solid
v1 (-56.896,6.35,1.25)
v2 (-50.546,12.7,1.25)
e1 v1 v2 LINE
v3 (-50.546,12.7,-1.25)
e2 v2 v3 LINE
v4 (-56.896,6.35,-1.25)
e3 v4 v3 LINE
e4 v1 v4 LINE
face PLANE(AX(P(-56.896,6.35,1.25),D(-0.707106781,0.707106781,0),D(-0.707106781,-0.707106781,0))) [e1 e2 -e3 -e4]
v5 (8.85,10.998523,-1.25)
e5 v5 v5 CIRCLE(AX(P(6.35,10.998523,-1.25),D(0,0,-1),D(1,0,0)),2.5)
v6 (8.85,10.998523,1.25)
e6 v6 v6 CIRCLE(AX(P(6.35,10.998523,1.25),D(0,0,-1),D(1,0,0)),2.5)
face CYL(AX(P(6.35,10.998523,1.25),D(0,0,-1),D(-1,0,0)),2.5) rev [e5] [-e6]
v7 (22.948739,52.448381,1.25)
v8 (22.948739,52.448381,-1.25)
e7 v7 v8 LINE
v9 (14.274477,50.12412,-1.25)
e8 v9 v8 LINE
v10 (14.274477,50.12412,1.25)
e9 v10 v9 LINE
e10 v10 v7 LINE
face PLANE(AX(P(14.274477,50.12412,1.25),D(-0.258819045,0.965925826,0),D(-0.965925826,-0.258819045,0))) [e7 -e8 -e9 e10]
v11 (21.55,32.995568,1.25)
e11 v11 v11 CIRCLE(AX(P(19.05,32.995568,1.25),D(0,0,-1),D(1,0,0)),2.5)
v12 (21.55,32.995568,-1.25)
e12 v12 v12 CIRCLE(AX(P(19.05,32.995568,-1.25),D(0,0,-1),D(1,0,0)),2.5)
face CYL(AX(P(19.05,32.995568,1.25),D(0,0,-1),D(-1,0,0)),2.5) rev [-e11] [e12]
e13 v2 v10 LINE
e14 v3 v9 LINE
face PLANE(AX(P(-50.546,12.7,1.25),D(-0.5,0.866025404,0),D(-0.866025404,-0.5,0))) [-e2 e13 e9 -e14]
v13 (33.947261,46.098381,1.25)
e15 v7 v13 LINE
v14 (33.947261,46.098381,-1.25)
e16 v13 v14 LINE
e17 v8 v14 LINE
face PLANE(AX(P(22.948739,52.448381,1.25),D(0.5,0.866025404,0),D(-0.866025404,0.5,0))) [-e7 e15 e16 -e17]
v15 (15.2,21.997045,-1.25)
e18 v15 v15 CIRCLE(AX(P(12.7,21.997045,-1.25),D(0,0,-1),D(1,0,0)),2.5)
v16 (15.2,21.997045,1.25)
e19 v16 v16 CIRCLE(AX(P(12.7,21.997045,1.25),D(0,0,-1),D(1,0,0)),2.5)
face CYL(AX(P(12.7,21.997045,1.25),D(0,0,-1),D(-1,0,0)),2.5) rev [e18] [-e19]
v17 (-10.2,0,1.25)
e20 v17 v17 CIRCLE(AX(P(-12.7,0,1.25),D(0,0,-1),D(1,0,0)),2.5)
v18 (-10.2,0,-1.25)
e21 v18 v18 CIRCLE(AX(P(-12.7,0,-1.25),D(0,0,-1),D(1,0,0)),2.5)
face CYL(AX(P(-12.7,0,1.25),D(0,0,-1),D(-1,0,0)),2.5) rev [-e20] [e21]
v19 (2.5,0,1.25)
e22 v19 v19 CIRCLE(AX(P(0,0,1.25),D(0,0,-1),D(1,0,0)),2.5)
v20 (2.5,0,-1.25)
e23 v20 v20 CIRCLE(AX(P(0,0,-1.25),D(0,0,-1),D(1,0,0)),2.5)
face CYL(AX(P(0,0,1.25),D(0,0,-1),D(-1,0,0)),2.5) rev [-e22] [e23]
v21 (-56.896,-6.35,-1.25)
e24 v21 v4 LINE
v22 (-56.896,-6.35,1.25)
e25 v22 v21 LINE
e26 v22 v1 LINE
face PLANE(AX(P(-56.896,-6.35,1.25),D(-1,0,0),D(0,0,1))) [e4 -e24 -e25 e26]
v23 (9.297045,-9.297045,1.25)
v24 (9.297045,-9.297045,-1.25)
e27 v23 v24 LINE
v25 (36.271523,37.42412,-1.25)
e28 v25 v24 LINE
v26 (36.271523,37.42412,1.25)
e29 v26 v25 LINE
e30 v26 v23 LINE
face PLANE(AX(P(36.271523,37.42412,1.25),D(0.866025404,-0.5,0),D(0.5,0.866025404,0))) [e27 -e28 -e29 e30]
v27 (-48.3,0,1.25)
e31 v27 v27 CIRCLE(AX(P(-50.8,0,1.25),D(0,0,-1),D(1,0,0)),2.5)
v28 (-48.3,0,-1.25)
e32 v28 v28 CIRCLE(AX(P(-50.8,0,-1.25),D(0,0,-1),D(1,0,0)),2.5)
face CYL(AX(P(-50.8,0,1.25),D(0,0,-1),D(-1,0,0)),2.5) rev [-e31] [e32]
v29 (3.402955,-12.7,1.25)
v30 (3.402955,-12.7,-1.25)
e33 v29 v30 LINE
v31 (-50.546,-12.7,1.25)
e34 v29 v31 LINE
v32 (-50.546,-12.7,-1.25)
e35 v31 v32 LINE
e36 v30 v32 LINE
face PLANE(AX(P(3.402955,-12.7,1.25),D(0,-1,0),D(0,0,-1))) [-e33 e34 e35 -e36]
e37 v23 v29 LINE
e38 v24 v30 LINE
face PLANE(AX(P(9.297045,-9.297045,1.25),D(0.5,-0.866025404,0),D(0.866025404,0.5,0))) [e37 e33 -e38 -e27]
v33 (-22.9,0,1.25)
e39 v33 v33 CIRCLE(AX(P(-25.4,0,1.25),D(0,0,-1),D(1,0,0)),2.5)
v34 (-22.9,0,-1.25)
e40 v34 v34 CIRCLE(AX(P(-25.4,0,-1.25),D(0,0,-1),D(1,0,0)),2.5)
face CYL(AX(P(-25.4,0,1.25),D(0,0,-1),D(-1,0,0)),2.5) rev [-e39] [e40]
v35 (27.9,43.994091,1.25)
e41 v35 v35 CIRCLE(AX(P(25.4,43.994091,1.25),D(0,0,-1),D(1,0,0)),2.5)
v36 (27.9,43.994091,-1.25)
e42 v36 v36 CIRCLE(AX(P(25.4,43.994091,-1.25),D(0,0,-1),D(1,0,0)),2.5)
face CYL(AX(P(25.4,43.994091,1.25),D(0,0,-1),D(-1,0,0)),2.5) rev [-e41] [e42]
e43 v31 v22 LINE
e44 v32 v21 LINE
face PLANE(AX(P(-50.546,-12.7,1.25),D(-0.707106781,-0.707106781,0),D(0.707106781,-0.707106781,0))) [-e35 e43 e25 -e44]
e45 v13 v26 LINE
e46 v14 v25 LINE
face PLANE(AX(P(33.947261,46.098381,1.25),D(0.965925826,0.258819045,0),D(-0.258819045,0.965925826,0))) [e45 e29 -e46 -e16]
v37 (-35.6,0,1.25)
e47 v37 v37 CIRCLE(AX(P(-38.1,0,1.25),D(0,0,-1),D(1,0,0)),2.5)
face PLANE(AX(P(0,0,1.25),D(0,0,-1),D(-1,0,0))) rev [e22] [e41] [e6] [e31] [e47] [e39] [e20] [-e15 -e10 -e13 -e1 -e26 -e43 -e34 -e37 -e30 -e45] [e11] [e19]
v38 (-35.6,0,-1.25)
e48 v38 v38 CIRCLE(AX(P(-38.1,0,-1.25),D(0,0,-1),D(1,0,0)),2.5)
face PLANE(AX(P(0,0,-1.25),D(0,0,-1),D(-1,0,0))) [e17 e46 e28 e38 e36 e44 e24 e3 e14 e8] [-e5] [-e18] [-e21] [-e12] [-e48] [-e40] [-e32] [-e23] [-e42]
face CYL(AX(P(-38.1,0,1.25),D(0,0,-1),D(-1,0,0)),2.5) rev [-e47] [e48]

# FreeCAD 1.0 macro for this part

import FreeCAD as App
import Part
import Sketcher
from FreeCAD import Vector
Q = App.Units.Quantity

doc = App.newDocument("Part")
body = doc.addObject("PartDesign::Body", "Body")

sketch1 = body.newObject("Sketcher::SketchObject", "Sketch")
sketch1.AttachmentSupport = (doc.getObject("XY_Plane"), [""])
sketch1.MapMode = "FlatFace"
sketch1.AttachmentOffset = App.Placement(Vector(0, 0, -1.25), App.Rotation())
sketch1.addGeometry([
    Part.LineSegment(Vector(3.4, -12.7, 0), Vector(-50.5, -12.7, 0)),
    Part.LineSegment(Vector(-50.5, -12.7, 0), Vector(-56.9, -6.3, 0)),
    Part.LineSegment(Vector(-56.9, -6.3, 0), Vector(-56.9, 6.3, 0)),
    Part.LineSegment(Vector(-56.9, 6.3, 0), Vector(-50.5, 12.7, 0)),
    Part.LineSegment(Vector(-50.5, 12.7, 0), Vector(14.3, 50.1, 0)),
    Part.LineSegment(Vector(14.3, 50.1, 0), Vector(22.9, 52.4, 0)),
    Part.LineSegment(Vector(22.9, 52.4, 0), Vector(33.9, 46.1, 0)),
    Part.LineSegment(Vector(33.9, 46.1, 0), Vector(36.3, 37.4, 0)),
    Part.LineSegment(Vector(36.3, 37.4, 0), Vector(9.3, -9.3, 0)),
    Part.LineSegment(Vector(9.3, -9.3, 0), Vector(3.4, -12.7, 0)),
    Part.Circle(Vector(0, 0, 0), Vector(0, 0, 1), 2.5),
    Part.Circle(Vector(6.3, 11, 0), Vector(0, 0, 1), 2.5),
    Part.Circle(Vector(-12.7, 0, 0), Vector(0, 0, 1), 2.5),
    Part.Circle(Vector(-25.4, 0, 0), Vector(0, 0, 1), 2.5),
    Part.Circle(Vector(-38.1, 0, 0), Vector(0, 0, 1), 2.5),
    Part.Circle(Vector(-50.8, 0, 0), Vector(0, 0, 1), 2.5),
    Part.Circle(Vector(12.7, 22, 0), Vector(0, 0, 1), 2.5),
    Part.Circle(Vector(19.1, 33, 0), Vector(0, 0, 1), 2.5),
    Part.Circle(Vector(25.4, 44, 0), Vector(0, 0, 1), 2.5),
], False)
sketch1.addConstraint([
    Sketcher.Constraint("Coincident", 0, 2, 1, 1),
    Sketcher.Constraint("Coincident", 1, 2, 2, 1),
    Sketcher.Constraint("Coincident", 2, 2, 3, 1),
    Sketcher.Constraint("Coincident", 3, 2, 4, 1),
    Sketcher.Constraint("Coincident", 4, 2, 5, 1),
    Sketcher.Constraint("Coincident", 5, 2, 6, 1),
    Sketcher.Constraint("Coincident", 6, 2, 7, 1),
    Sketcher.Constraint("Coincident", 7, 2, 8, 1),
    Sketcher.Constraint("Coincident", 8, 2, 9, 1),
    Sketcher.Constraint("Coincident", 9, 2, 0, 1),
    Sketcher.Constraint("Horizontal", 0),
    Sketcher.Constraint("Vertical", 2),
    Sketcher.Constraint("Coincident", 10, 3, -1, 1),
    Sketcher.Constraint("Equal", 10, 11),
    Sketcher.Constraint("Equal", 11, 12),
    Sketcher.Constraint("Equal", 12, 13),
    Sketcher.Constraint("Equal", 13, 14),
    Sketcher.Constraint("Equal", 14, 15),
    Sketcher.Constraint("Equal", 15, 16),
    Sketcher.Constraint("Equal", 16, 17),
    Sketcher.Constraint("Equal", 17, 18),
    Sketcher.Constraint("Symmetric", 0, 2, 3, 2, -1),
    Sketcher.Constraint("PointOnObject", 12, 3, -1),
    Sketcher.Constraint("PointOnObject", 13, 3, -1),
    Sketcher.Constraint("PointOnObject", 14, 3, -1),
    Sketcher.Constraint("PointOnObject", 15, 3, -1),
    Sketcher.Constraint("Perpendicular", 1, 3),
    Sketcher.Constraint("Perpendicular", 5, 7),
    Sketcher.Constraint("Perpendicular", 6, 8),
    Sketcher.Constraint("Parallel", 4, 9),
    Sketcher.Constraint("Equal", 1, 3),
    Sketcher.Constraint("Equal", 3, 5),
    Sketcher.Constraint("Equal", 5, 7),
    Sketcher.Constraint("Diameter", 10, Q("5 mm")),
    Sketcher.Constraint("Angle", 4, Q("30 deg")),
    Sketcher.Constraint("Angle", 5, Q("15 deg")),
    Sketcher.Constraint("Angle", 6, Q("-30 deg")),
    Sketcher.Constraint("DistanceY", 2, 1, 2, 2, Q("12.7 mm")),
    Sketcher.Constraint("Distance", 6, Q("12.7 mm")),
    Sketcher.Constraint("DistanceX", 12, 3, -1, 1, Q("12.7 mm")),
    Sketcher.Constraint("DistanceX", 13, 3, -1, 1, Q("25.4 mm")),
    Sketcher.Constraint("DistanceX", 14, 3, -1, 1, Q("38.1 mm")),
    Sketcher.Constraint("DistanceX", 15, 3, -1, 1, Q("50.8 mm")),
    Sketcher.Constraint("DistanceX", -1, 1, 16, 3, Q("12.7 mm")),
    Sketcher.Constraint("DistanceX", -1, 1, 18, 3, Q("25.4 mm")),
    Sketcher.Constraint("DistanceY", 0, 2, -1, 1, Q("12.7 mm")),
    Sketcher.Constraint("DistanceX", 11, 3, 17, 3, Q("12.7 mm")),
    Sketcher.Constraint("DistanceX", -1, 1, 11, 3, Q("6.35 mm")),
    Sketcher.Constraint("DistanceX", 0, 2, -1, 1, Q("50.546 mm")),
    Sketcher.Constraint("Distance", 4, Q("74.84824 mm")),
    Sketcher.Constraint("Distance", 9, Q("6.805909 mm")),
    Sketcher.Constraint("DistanceY", -1, 1, 18, 3, Q("43.994091 mm")),
    Sketcher.Constraint("DistanceY", 11, 3, 5, 2, Q("41.449859 mm")),
    Sketcher.Constraint("DistanceY", 8, 2, 16, 3, Q("31.294091 mm")),
    Sketcher.Constraint("DistanceY", -1, 1, 17, 3, Q("32.995568 mm")),
])
pad1 = body.newObject("PartDesign::Pad", "Pad")
pad1.Profile = sketch1
pad1.Length = 2.5

doc.recompute()
